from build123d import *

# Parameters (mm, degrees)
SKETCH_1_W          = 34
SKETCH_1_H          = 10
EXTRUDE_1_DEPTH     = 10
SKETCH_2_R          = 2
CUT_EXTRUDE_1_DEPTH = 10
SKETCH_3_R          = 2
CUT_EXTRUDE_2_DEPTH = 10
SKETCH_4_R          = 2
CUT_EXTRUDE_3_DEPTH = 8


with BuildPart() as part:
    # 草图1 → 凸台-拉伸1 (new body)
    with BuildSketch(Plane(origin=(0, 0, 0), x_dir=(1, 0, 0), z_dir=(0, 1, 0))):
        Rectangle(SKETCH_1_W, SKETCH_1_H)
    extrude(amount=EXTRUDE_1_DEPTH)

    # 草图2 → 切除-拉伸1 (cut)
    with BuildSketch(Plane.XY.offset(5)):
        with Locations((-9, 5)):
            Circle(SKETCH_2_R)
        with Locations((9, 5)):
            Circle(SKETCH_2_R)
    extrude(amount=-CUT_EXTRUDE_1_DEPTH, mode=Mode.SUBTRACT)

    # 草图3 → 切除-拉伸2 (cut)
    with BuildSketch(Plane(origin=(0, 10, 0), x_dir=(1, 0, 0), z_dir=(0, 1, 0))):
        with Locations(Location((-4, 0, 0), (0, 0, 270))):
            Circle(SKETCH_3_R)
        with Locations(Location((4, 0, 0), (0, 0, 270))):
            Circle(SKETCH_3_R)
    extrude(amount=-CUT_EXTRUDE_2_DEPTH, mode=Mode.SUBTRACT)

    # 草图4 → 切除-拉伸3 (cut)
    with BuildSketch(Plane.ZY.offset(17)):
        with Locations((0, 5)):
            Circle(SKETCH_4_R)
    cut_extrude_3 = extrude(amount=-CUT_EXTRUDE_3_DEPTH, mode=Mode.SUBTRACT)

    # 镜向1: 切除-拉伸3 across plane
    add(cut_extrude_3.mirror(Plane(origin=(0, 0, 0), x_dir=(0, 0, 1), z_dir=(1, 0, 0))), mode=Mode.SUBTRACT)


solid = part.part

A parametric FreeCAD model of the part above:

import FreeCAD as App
import Part
import Sketcher
Q = App.Units.Quantity

doc = App.newDocument("Part")
body = doc.addObject("PartDesign::Body", "Body")

sketch1 = body.newObject("Sketcher::SketchObject", "Sketch")
sketch1.AttachmentSupport = (doc.getObject("XZ_Plane"), [""])
sketch1.MapMode = "FlatFace"
sketch1.addGeometry([
    Part.LineSegment(App.Vector(-17, -5, 0), App.Vector(-17, 5, 0)),
    Part.LineSegment(App.Vector(-17, 5, 0), App.Vector(17, 5, 0)),
    Part.LineSegment(App.Vector(17, 5, 0), App.Vector(17, -5, 0)),
    Part.LineSegment(App.Vector(17, -5, 0), App.Vector(-17, -5, 0)),
], False)
sketch1.addConstraint([
    Sketcher.Constraint("Coincident", 0, 2, 1, 1),
    Sketcher.Constraint("Coincident", 1, 2, 2, 1),
    Sketcher.Constraint("Coincident", 2, 2, 3, 1),
    Sketcher.Constraint("Coincident", 3, 2, 0, 1),
    Sketcher.Constraint("Vertical", 0),
    Sketcher.Constraint("Horizontal", 1),
    Sketcher.Constraint("Vertical", 2),
    Sketcher.Constraint("Horizontal", 3),
    Sketcher.Constraint("Symmetric", 0, 2, 2, 2, -1, 1),
    Sketcher.Constraint("DistanceX", 1, 1, 1, 2, Q("34 mm")),
    Sketcher.Constraint("DistanceY", 0, 1, 0, 2, Q("10 mm")),
])
pad1 = body.newObject("PartDesign::Pad", "Pad")
pad1.Profile = sketch1
pad1.Length = 10
pad1.Reversed = True

sketch2 = body.newObject("Sketcher::SketchObject", "Sketch001")
sketch2.AttachmentSupport = (doc.getObject("XY_Plane"), [""])
sketch2.MapMode = "FlatFace"
sketch2.AttachmentOffset = App.Placement(App.Vector(0, 0, 5), App.Rotation())
sketch2.addGeometry([
    Part.Circle(App.Vector(-9, 5, 0), App.Vector(0, 0, 1), 2),
    Part.Circle(App.Vector(9, 5, 0), App.Vector(0, 0, 1), 2),
], False)
sketch2.addConstraint([
    Sketcher.Constraint("Equal", 0, 1),
    Sketcher.Constraint("Symmetric", 0, 3, 1, 3, -2),
    Sketcher.Constraint("Diameter", 0, Q("4 mm")),
    Sketcher.Constraint("DistanceX", 0, 3, -1, 1, Q("9 mm")),
    Sketcher.Constraint("DistanceY", -1, 1, 0, 3, Q("5 mm")),
])
pocket1 = body.newObject("PartDesign::Pocket", "Pocket")
pocket1.Profile = sketch2
pocket1.Length = 10

sketch3 = body.newObject("Sketcher::SketchObject", "Sketch002")
sketch3.AttachmentSupport = (doc.getObject("XZ_Plane"), [""])
sketch3.MapMode = "FlatFace"
sketch3.AttachmentOffset = App.Placement(App.Vector(0, 0, -10), App.Rotation())
sketch3.addGeometry([
    Part.Circle(App.Vector(-4, 0, 0), App.Vector(0, 0, 1), 2),
    Part.Circle(App.Vector(4, 0, 0), App.Vector(0, 0, 1), 2),
], False)
sketch3.addConstraint([
    Sketcher.Constraint("Equal", 0, 1),
    Sketcher.Constraint("Symmetric", 0, 3, 1, 3, -1, 1),
    Sketcher.Constraint("PointOnObject", 0, 3, -1),
    Sketcher.Constraint("Diameter", 0, Q("4 mm")),
    Sketcher.Constraint("DistanceX", 0, 3, -1, 1, Q("4 mm")),
])
pocket2 = body.newObject("PartDesign::Pocket", "Pocket001")
pocket2.Profile = sketch3
pocket2.Length = 10
pocket2.Reversed = True

sketch4 = body.newObject("Sketcher::SketchObject", "Sketch003")
sketch4.AttachmentSupport = (doc.getObject("YZ_Plane"), [""])
sketch4.MapMode = "FlatFace"
sketch4.AttachmentOffset = App.Placement(App.Vector(0, 0, -17), App.Rotation())
sketch4.addGeometry(Part.Circle(App.Vector(5, 0, 0), App.Vector(0, 0, 1), 2), False)
sketch4.addConstraint([
    Sketcher.Constraint("PointOnObject", 0, 3, -1),
    Sketcher.Constraint("Diameter", 0, Q("4 mm")),
    Sketcher.Constraint("DistanceX", -1, 1, 0, 3, Q("5 mm")),
])
pocket3 = body.newObject("PartDesign::Pocket", "Pocket002")
pocket3.Profile = sketch4
pocket3.Length = 8
pocket3.Reversed = True
doc.recompute()

mirrored = body.newObject("PartDesign::Mirrored", "Mirrored")
mirrored.Originals = [pocket3]
mirrored.MirrorPlane = (doc.getObject("YZ_Plane"), [""])
body.Tip = mirrored

doc.recompute()
